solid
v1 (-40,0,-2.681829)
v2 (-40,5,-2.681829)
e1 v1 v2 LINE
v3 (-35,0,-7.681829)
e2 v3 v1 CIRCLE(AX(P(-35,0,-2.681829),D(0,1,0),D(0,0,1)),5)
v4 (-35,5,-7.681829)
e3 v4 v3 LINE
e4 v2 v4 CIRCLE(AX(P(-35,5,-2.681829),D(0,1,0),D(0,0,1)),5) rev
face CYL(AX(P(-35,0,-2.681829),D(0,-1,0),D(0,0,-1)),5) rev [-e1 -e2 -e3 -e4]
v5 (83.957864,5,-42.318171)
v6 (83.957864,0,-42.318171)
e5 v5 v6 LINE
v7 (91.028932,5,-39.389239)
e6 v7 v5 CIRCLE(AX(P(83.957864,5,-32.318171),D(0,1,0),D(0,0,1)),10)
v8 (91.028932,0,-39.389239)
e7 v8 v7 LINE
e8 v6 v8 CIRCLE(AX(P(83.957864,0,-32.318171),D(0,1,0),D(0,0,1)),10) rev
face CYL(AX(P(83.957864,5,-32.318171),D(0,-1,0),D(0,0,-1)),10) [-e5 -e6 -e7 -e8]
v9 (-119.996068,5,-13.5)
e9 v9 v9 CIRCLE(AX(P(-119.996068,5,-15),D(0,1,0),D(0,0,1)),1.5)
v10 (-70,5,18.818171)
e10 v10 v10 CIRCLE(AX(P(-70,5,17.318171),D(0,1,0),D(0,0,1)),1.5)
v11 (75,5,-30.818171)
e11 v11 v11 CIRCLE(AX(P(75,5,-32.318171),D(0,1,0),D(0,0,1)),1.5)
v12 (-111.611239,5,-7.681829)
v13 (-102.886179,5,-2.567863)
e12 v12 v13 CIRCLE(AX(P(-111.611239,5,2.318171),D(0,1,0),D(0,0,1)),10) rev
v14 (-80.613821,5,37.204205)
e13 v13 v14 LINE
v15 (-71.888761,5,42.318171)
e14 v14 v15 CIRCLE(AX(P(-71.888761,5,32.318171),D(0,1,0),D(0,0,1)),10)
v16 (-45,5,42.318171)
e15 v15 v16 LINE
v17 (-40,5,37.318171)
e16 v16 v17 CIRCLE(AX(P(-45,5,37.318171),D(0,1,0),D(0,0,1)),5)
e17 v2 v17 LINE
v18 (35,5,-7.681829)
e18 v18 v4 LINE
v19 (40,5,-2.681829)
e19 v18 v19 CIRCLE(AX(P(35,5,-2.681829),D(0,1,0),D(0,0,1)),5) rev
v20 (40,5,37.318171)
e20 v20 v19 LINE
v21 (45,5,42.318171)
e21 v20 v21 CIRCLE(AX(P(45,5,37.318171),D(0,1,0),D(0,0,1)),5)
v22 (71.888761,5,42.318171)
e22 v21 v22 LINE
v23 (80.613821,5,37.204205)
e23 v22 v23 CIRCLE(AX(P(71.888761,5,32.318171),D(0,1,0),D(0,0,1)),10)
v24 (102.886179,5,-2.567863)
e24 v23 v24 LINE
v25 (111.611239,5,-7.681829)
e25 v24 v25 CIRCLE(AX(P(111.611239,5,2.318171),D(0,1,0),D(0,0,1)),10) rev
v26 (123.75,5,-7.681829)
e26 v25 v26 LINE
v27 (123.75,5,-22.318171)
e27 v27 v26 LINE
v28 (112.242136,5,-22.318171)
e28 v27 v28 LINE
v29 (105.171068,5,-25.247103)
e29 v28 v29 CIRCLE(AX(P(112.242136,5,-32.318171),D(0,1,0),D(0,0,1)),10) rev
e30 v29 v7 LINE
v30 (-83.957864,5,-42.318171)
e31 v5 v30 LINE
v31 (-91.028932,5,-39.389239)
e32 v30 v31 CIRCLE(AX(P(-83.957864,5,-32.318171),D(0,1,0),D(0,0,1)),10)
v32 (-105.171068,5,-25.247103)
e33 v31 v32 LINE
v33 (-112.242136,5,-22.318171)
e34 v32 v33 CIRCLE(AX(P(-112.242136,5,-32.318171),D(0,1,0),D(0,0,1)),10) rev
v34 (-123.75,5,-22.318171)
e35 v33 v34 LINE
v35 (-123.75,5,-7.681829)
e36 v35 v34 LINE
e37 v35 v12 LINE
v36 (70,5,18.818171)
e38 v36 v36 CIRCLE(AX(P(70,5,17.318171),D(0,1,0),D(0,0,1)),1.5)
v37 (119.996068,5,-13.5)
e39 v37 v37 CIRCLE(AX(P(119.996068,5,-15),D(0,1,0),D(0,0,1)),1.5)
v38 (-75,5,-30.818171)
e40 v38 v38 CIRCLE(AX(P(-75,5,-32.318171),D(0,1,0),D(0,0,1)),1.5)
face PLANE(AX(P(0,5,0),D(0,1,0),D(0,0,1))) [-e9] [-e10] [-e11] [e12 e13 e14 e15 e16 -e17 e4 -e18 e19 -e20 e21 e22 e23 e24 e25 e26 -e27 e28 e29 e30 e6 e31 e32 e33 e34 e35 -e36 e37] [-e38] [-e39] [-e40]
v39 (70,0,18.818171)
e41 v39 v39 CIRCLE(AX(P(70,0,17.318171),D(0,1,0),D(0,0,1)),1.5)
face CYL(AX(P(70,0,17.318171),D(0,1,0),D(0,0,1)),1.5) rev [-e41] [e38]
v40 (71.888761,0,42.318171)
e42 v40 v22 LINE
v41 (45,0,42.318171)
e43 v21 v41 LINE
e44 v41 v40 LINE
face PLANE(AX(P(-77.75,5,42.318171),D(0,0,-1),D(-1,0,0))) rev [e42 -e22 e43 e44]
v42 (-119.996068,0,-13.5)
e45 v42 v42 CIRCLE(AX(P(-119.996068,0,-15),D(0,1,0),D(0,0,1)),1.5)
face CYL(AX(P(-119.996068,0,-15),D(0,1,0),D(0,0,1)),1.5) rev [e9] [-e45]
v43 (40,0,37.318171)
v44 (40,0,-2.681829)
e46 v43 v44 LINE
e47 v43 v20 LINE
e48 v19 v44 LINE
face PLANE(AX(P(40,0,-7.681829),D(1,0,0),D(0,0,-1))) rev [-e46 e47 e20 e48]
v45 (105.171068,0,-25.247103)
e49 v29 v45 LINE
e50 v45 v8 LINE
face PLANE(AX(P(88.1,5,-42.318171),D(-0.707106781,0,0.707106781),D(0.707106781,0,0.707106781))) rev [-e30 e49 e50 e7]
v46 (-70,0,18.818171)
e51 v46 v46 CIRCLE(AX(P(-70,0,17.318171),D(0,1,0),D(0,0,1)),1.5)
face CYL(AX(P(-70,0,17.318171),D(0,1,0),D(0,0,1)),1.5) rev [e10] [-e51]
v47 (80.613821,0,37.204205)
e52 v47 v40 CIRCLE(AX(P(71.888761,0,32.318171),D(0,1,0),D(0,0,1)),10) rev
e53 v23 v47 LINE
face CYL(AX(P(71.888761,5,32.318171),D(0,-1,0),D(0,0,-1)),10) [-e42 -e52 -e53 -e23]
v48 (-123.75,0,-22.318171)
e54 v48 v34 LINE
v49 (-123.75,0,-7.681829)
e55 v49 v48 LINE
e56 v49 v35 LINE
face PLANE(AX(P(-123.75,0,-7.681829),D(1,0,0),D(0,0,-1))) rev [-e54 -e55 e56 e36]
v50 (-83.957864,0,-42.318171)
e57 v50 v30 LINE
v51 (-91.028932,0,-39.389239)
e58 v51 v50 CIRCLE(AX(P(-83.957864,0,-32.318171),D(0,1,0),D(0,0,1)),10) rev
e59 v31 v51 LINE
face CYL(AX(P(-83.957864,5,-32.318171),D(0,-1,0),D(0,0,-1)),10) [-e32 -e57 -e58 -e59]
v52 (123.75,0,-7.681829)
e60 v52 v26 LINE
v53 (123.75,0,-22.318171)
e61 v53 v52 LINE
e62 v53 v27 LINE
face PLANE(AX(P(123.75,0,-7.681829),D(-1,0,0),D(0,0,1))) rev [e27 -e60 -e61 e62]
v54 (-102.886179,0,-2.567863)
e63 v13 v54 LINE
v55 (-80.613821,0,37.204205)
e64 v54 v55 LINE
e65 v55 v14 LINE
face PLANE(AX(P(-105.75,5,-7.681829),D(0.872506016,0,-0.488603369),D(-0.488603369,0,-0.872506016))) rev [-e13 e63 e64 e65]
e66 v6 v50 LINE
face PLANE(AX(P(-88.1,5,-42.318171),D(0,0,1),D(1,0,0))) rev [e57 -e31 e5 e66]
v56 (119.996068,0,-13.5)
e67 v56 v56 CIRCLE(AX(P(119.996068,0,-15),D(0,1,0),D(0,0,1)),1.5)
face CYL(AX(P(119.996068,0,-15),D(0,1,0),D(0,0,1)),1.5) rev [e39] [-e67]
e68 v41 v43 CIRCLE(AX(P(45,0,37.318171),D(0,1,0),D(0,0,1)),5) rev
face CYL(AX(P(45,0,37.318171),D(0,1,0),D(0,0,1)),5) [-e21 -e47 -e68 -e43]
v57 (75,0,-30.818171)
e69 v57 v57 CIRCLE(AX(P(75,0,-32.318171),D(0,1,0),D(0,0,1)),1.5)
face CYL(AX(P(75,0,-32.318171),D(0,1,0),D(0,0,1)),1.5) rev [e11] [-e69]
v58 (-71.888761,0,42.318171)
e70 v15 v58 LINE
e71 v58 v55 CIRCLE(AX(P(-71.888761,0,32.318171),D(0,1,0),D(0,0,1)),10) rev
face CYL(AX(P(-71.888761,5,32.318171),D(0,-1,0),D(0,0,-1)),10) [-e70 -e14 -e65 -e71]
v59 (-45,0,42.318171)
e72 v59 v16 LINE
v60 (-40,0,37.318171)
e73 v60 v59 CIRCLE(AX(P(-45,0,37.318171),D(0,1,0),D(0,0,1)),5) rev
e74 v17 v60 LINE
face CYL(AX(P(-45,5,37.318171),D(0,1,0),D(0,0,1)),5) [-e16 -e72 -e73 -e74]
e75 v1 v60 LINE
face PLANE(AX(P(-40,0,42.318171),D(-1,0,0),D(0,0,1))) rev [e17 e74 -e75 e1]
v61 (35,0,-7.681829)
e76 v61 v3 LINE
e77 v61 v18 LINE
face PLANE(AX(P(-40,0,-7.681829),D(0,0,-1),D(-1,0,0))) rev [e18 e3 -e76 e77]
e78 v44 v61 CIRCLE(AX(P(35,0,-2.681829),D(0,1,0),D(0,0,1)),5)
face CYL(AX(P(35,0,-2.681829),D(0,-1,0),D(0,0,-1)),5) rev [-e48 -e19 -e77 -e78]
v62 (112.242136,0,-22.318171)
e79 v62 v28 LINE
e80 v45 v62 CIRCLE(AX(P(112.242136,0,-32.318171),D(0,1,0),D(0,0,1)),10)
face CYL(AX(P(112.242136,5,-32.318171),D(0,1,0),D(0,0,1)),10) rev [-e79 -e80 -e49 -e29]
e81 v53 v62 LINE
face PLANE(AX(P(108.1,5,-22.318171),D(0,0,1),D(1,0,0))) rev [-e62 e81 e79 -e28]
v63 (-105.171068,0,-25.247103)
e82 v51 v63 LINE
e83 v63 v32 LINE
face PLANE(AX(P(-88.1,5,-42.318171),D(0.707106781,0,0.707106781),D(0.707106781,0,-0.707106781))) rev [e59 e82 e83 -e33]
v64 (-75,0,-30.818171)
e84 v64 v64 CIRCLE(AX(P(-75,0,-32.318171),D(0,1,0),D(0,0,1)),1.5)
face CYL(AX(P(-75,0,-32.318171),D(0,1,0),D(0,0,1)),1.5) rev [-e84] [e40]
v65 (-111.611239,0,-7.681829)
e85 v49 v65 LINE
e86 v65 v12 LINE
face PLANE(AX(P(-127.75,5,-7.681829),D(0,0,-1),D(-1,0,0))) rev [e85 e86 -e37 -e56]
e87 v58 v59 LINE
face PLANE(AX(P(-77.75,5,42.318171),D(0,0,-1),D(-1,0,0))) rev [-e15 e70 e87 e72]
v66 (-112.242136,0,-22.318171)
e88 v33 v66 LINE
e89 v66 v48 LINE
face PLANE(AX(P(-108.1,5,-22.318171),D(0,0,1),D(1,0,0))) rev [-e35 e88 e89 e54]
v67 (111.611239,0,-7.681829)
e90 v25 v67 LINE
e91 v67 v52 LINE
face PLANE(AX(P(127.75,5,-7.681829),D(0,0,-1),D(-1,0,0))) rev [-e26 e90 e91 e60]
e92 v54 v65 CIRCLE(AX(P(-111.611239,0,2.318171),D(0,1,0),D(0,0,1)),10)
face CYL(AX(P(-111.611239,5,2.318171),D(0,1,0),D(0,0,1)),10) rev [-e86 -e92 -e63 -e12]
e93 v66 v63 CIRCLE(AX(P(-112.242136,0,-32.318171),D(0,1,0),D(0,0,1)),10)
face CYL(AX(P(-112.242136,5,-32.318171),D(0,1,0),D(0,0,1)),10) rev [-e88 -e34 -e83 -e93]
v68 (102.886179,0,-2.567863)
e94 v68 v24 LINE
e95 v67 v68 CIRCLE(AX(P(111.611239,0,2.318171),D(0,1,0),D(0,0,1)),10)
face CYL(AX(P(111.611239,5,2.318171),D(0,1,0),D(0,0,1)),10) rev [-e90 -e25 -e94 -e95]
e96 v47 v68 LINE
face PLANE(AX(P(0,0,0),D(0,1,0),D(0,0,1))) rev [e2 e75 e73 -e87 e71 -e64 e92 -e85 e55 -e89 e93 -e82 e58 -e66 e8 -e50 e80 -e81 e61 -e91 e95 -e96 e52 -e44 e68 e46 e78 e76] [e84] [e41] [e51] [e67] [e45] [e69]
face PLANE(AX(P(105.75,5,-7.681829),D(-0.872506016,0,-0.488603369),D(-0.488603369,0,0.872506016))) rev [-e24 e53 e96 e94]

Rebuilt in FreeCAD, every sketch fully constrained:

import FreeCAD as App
import Part
import Sketcher
Q = App.Units.Quantity


def edges_at(feature, points):
    """Names of the edges that pass closest to the given points."""
    edges = feature.Shape.Edges
    near = lambda p: min(range(len(edges)), key=lambda i: edges[i].distToShape(Part.Vertex(*p))[0])
    return sorted({f"Edge{near(p) + 1}" for p in points})


def add_polygon(sketch, points):
    """Adds a closed chain of lines whose ends are joined by coincident constraints."""
    first, n = sketch.GeometryCount, len(points)
    for a, b in zip(points, points[1:] + points[:1]):
        sketch.addGeometry(Part.LineSegment(App.Vector(*a, 0), App.Vector(*b, 0)), False)
    for i in range(n):
        sketch.addConstraint(Sketcher.Constraint("Coincident", first + i, 2, first + (i + 1) % n, 1))

doc = App.newDocument("Part")
body = doc.addObject("PartDesign::Body", "Body")

# Sketch on XZ plane
sketch1 = body.newObject("Sketcher::SketchObject", "Sketch")
sketch1.AttachmentSupport = (doc.getObject("XZ_Plane"), [""])
sketch1.MapMode = "FlatFace"
add_polygon(sketch1, [(88, -42), (-88, -42), (-108, -22), (-128, -22), (-128, -8), (-106, -8), (-78, 42), (78, 42), (106, -8), (128, -8), (128, -22), (108, -22)])  # lines 0-11
sketch1.addConstraint([
    Sketcher.Constraint("Horizontal", 0),
    Sketcher.Constraint("Horizontal", 2),
    Sketcher.Constraint("Vertical", 3),
    Sketcher.Constraint("Horizontal", 4),
    Sketcher.Constraint("Horizontal", 6),
    Sketcher.Constraint("Horizontal", 8),
    Sketcher.Constraint("Vertical", 9),
    Sketcher.Constraint("Horizontal", 10),
    Sketcher.Constraint("Symmetric", 4, 2, 7, 2, -2),
    Sketcher.Constraint("Symmetric", 2, 2, 9, 2, -2),
    Sketcher.Constraint("Perpendicular", 1, 11),
    Sketcher.Constraint("Equal", 2, 10),
    Sketcher.Constraint("Equal", 5, 7),
    Sketcher.Constraint("Equal", 1, 11),
    Sketcher.Constraint("DistanceX", 4, 1, 4, 2, Q("22 mm")),
    Sketcher.Constraint("DistanceX", 0, 2, 0, 1, Q("176.2 mm")),
    Sketcher.Constraint("DistanceX", 6, 1, 6, 2, Q("155.5 mm")),
    Sketcher.Constraint("DistanceX", 1, 2, 0, 2, Q("20 mm")),
    Sketcher.Constraint("DistanceX", 4, 2, 5, 2, Q("28 mm")),
    Sketcher.Constraint("DistanceY", 4, 2, 5, 2, Q("50 mm")),
    Sketcher.Constraint("DistanceY", 3, 1, 3, 2, Q("14.636342 mm")),
    Sketcher.Constraint("DistanceY", 0, 2, -1, 1, Q("42.318171 mm")),
])
pad1 = body.newObject("PartDesign::Pad", "Pad")
pad1.Profile = sketch1
pad1.Length = 5
pad1.Reversed = True
doc.recompute()

fillet = body.newObject("PartDesign::Fillet", "Fillet")
fillet.Base = (pad1, edges_at(pad1, [
    (-88.1, 2.5, -42.318),
    (88.1, 2.5, -42.318),
    (108.1, 2.5, -22.318),
    (105.75, 2.5, -7.682),
    (77.75, 2.5, 42.318),
    (-77.75, 2.5, 42.318),
    (-105.75, 2.5, -7.682),
    (-108.1, 2.5, -22.318),
]))
fillet.Radius = 10

# Sketch on XZ plane
sketch2 = body.newObject("Sketcher::SketchObject", "Sketch001")
sketch2.AttachmentSupport = (doc.getObject("XZ_Plane"), [""])
sketch2.MapMode = "FlatFace"
sketch2.AttachmentOffset = App.Placement(App.Vector(0, 0, -5), App.Rotation())
sketch2.addGeometry([
    Part.Circle(App.Vector(70, 17.3, 0), App.Vector(0, 0, 1), 1.5),  # 0
    Part.Circle(App.Vector(-70, 17.3, 0), App.Vector(0, 0, 1), 1.5),  # 1
    Part.Circle(App.Vector(-120, -15, 0), App.Vector(0, 0, 1), 1.5),  # 2
    Part.Circle(App.Vector(120, -15, 0), App.Vector(0, 0, 1), 1.5),  # 3
    Part.Circle(App.Vector(-75, -32.3, 0), App.Vector(0, 0, 1), 1.5),  # 4
    Part.Circle(App.Vector(75, -32.3, 0), App.Vector(0, 0, 1), 1.5),  # 5
    Part.Circle(App.Vector(-17.5, 17.3, 0), App.Vector(0, 0, 1), 1.5),  # 6
    Part.Circle(App.Vector(17.5, 17.3, 0), App.Vector(0, 0, 1), 1.5),  # 7
    Part.Circle(App.Vector(-17.5, 37.3, 0), App.Vector(0, 0, 1), 1.5),  # 8
    Part.Circle(App.Vector(17.5, 37.3, 0), App.Vector(0, 0, 1), 1.5),  # 9
], False)
sketch2.addConstraint([
    Sketcher.Constraint("Equal", 0, 1),
    Sketcher.Constraint("Equal", 1, 2),
    Sketcher.Constraint("Equal", 2, 3),
    Sketcher.Constraint("Equal", 3, 4),
    Sketcher.Constraint("Equal", 4, 5),
    Sketcher.Constraint("Equal", 5, 6),
    Sketcher.Constraint("Equal", 6, 7),
    Sketcher.Constraint("Equal", 7, 8),
    Sketcher.Constraint("Equal", 8, 9),
    Sketcher.Constraint("Symmetric", 0, 3, 1, 3, -2),
    Sketcher.Constraint("Symmetric", 2, 3, 3, 3, -2),
    Sketcher.Constraint("Symmetric", 4, 3, 5, 3, -2),
    Sketcher.Constraint("Symmetric", 6, 3, 7, 3, -2),
    Sketcher.Constraint("Symmetric", 8, 3, 9, 3, -2),
    Sketcher.Constraint("Horizontal", 1, 3, 6, 3),
    Sketcher.Constraint("Vertical", 6, 3, 8, 3),
    Sketcher.Constraint("Diameter", 0, Q("3 mm")),
    Sketcher.Constraint("DistanceX", -1, 1, 0, 3, Q("70 mm")),
    Sketcher.Constraint("DistanceY", 2, 3, -1, 1, Q("15 mm")),
    Sketcher.Constraint("DistanceX", 4, 3, -1, 1, Q("75 mm")),
    Sketcher.Constraint("DistanceX", 6, 3, 7, 3, Q("35 mm")),
    Sketcher.Constraint("DistanceY", 6, 3, 8, 3, Q("20 mm")),
    Sketcher.Constraint("DistanceY", -1, 1, 0, 3, Q("17.318171 mm")),
    Sketcher.Constraint("DistanceY", 4, 3, -1, 1, Q("32.318171 mm")),
    Sketcher.Constraint("DistanceX", 2, 3, -1, 1, Q("119.996068 mm")),
])
pocket1 = body.newObject("PartDesign::Pocket", "Pocket")
pocket1.Profile = sketch2
pocket1.Type = "ThroughAll"
pocket1.Reversed = True

# Sketch on XZ plane
sketch3 = body.newObject("Sketcher::SketchObject", "Sketch002")
sketch3.AttachmentSupport = (doc.getObject("XZ_Plane"), [""])
sketch3.MapMode = "FlatFace"
sketch3.AttachmentOffset = App.Placement(App.Vector(0, 0, -5), App.Rotation())
add_polygon(sketch3, [(-40, -8), (-40, 42), (40, 42), (40, -8)])  # lines 0-3
sketch3.addConstraint([
    Sketcher.Constraint("Vertical", 0),
    Sketcher.Constraint("Horizontal", 1),
    Sketcher.Constraint("Vertical", 2),
    Sketcher.Constraint("Horizontal", 3),
    Sketcher.Constraint("DistanceX", 1, 1, 1, 2, Q("80 mm")),
    Sketcher.Constraint("DistanceY", 0, 1, 0, 2, Q("50 mm")),
    Sketcher.Constraint("DistanceX", 0, 2, -1, 1, Q("40 mm")),
    Sketcher.Constraint("DistanceY", -1, 1, 0, 2, Q("42.318171 mm")),
])
pocket2 = body.newObject("PartDesign::Pocket", "Pocket001")
pocket2.Profile = sketch3
pocket2.Type = "ThroughAll"
pocket2.Reversed = True
doc.recompute()

fillet2 = body.newObject("PartDesign::Fillet", "Fillet001")
fillet2.Base = (pocket2, edges_at(pocket2, [
    (40, 2.5, 42.318),
    (-40, 2.5, 42.318),
    (-40, 2.5, -7.682),
    (40, 2.5, -7.682),
]))
fillet2.Radius = 5

# Sketch on XZ plane
sketch4 = body.newObject("Sketcher::SketchObject", "Sketch003")
sketch4.AttachmentSupport = (doc.getObject("XZ_Plane"), [""])
sketch4.MapMode = "FlatFace"
sketch4.AttachmentOffset = App.Placement(App.Vector(0, 0, -5), App.Rotation())
add_polygon(sketch4, [(-127.8, -22.3), (-127.8, -7.7), (-123.8, -7.7), (-123.8, -22.3)])  # lines 0-3
add_polygon(sketch4, [(123.8, -22.3), (123.8, -7.7), (127.8, -7.7), (127.8, -22.3)])  # lines 4-7
sketch4.addConstraint([
    Sketcher.Constraint("Vertical", 0),
    Sketcher.Constraint("Horizontal", 1),
    Sketcher.Constraint("Vertical", 2),
    Sketcher.Constraint("Horizontal", 3),
    Sketcher.Constraint("Vertical", 4),
    Sketcher.Constraint("Horizontal", 5),
    Sketcher.Constraint("Vertical", 6),
    Sketcher.Constraint("Horizontal", 7),
    Sketcher.Constraint("Symmetric", 1, 2, 4, 2, -2),
    Sketcher.Constraint("Symmetric", 3, 2, 6, 2, -2),
    Sketcher.Constraint("DistanceX", 1, 1, 1, 2, Q("4 mm")),
    Sketcher.Constraint("DistanceX", 1, 2, 4, 2, Q("247.5 mm")),
    Sketcher.Constraint("DistanceY", 0, 1, 0, 2, Q("14.636342 mm")),
    Sketcher.Constraint("DistanceY", 0, 2, -1, 1, Q("7.681829 mm")),
])
pocket3 = body.newObject("PartDesign::Pocket", "Pocket002")
pocket3.Profile = sketch4
pocket3.Type = "ThroughAll"
pocket3.Reversed = True

doc.recompute()
